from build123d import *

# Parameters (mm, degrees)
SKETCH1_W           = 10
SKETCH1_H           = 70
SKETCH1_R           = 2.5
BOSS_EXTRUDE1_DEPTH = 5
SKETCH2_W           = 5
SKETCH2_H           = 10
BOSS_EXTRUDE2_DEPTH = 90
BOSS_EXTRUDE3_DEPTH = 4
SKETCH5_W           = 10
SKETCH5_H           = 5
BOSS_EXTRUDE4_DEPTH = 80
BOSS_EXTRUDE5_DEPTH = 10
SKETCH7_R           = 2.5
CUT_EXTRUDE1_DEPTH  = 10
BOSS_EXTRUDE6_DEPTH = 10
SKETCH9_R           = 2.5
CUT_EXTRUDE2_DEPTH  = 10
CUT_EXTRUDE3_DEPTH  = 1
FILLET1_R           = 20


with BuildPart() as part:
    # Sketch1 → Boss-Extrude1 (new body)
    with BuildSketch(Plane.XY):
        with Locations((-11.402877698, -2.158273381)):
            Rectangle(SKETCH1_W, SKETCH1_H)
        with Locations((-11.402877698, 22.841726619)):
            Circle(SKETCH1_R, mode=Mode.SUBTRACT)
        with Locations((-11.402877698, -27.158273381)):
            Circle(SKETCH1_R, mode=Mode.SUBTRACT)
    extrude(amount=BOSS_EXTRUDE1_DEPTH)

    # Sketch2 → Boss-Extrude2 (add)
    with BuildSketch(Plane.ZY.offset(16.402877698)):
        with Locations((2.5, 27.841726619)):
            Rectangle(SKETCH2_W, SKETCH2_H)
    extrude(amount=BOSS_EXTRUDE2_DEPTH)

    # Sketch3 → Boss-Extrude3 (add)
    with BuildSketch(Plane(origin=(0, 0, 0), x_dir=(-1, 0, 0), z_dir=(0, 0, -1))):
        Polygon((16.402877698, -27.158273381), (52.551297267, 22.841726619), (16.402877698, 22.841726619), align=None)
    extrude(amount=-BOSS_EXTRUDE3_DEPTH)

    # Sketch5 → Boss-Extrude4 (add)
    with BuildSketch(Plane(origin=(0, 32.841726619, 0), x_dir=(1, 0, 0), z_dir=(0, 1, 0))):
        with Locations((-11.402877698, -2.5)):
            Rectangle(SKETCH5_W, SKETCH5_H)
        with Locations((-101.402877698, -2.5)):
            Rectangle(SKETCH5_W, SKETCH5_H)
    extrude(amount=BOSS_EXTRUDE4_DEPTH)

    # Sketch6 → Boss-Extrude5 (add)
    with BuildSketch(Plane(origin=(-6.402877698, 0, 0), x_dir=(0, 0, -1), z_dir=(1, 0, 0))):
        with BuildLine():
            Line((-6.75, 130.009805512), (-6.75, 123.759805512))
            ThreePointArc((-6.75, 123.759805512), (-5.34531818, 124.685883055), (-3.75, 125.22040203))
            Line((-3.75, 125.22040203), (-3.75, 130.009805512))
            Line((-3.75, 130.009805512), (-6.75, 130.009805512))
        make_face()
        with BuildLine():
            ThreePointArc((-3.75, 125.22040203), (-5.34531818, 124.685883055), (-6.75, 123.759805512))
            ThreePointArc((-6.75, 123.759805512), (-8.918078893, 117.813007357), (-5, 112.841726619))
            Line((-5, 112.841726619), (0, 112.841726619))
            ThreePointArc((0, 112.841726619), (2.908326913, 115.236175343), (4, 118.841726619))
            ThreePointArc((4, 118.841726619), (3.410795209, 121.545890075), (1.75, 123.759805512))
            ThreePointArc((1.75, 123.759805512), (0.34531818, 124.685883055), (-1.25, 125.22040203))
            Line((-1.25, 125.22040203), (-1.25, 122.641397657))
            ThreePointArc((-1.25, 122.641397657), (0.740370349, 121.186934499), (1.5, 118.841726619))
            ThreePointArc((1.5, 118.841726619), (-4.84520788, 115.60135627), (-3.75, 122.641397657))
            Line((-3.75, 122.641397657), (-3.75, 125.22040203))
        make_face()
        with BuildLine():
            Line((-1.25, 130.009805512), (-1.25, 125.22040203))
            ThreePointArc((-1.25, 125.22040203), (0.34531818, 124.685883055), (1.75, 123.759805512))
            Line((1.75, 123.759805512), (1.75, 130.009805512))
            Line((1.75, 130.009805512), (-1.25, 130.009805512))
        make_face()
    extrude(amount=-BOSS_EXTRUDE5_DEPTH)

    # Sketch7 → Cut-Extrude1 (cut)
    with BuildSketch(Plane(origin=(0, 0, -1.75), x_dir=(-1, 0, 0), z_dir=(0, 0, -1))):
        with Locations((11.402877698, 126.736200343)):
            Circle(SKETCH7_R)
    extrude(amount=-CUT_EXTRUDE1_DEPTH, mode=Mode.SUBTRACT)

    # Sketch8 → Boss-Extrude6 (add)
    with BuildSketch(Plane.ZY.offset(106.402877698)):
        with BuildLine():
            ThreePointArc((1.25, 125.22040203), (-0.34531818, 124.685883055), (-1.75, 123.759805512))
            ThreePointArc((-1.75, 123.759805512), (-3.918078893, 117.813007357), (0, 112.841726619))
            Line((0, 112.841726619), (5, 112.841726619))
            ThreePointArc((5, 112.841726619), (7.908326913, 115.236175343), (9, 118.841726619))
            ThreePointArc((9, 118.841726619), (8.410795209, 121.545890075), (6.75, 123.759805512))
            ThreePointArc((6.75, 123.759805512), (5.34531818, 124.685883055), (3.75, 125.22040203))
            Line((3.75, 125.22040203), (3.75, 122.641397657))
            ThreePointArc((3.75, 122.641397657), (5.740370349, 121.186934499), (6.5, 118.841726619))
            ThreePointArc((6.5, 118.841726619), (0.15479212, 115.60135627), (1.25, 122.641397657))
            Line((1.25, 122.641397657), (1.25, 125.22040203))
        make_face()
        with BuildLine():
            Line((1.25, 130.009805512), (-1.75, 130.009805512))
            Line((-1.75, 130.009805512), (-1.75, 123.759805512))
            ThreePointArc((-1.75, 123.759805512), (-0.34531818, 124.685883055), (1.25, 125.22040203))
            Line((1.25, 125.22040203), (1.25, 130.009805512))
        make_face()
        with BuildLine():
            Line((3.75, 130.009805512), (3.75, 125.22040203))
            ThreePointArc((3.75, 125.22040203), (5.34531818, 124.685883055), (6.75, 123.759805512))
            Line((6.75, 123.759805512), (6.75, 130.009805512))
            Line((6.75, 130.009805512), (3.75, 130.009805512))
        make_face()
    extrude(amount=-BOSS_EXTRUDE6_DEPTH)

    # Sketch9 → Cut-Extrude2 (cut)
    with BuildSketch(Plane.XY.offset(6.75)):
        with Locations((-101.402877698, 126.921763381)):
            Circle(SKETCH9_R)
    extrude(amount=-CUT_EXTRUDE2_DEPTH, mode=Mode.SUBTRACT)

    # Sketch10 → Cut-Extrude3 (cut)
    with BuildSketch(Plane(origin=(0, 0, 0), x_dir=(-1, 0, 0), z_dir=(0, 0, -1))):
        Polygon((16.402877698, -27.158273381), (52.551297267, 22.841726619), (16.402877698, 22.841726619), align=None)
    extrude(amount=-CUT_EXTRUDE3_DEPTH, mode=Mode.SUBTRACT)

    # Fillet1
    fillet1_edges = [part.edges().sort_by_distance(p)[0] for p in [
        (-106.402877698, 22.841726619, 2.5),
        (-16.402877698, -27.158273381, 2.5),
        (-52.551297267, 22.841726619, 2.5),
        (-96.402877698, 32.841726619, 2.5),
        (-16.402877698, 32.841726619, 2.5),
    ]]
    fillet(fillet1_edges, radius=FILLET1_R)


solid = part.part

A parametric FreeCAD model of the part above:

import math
import FreeCAD as App
import Part
import Sketcher


def edges_at(feature, points):
    """Names of the edges that pass closest to the given points."""
    edges = feature.Shape.Edges
    near = lambda p: min(range(len(edges)), key=lambda i: edges[i].distToShape(Part.Vertex(*p))[0])
    return sorted({f"Edge{near(p) + 1}" for p in points})

doc = App.newDocument("Part")
body = doc.addObject("PartDesign::Body", "Body")

# Sketch on XY plane
sketch1 = doc.addObject("Sketcher::SketchObject", "Sketch")
body.addObject(sketch1)
sketch1.AttachmentSupport = (doc.XY_Plane, [""])
sketch1.MapMode = "FlatFace"
sketch1.addGeometry(Part.LineSegment(App.Vector(-16.4, 32.8, 0), App.Vector(-16.4, -37.2, 0)), False)
sketch1.addGeometry(Part.LineSegment(App.Vector(-16.4, -37.2, 0), App.Vector(-6.4, -37.2, 0)), False)
sketch1.addGeometry(Part.LineSegment(App.Vector(-6.4, -37.2, 0), App.Vector(-6.4, 32.8, 0)), False)
sketch1.addGeometry(Part.LineSegment(App.Vector(-6.4, 32.8, 0), App.Vector(-16.4, 32.8, 0)), False)
sketch1.addGeometry(Part.Circle(App.Vector(-11.4, -27.2, 0), App.Vector(0, 0, 1), 2.5), False)
sketch1.addGeometry(Part.Circle(App.Vector(-11.4, 22.8, 0), App.Vector(0, 0, 1), 2.5), False)
sketch1.addConstraint(Sketcher.Constraint("Coincident", 0, 2, 1, 1))
sketch1.addConstraint(Sketcher.Constraint("Coincident", 1, 2, 2, 1))
sketch1.addConstraint(Sketcher.Constraint("Coincident", 2, 2, 3, 1))
sketch1.addConstraint(Sketcher.Constraint("Coincident", 3, 2, 0, 1))
sketch1.addConstraint(Sketcher.Constraint("Vertical", 0))
sketch1.addConstraint(Sketcher.Constraint("Horizontal", 1))
sketch1.addConstraint(Sketcher.Constraint("Vertical", 2))
sketch1.addConstraint(Sketcher.Constraint("Horizontal", 3))
sketch1.addConstraint(Sketcher.Constraint("Equal", 4, 5))
sketch1.addConstraint(Sketcher.Constraint("Vertical", 4, 3, 5, 3))
sketch1.addConstraint(Sketcher.Constraint("Diameter", 4, 5.0))
sketch1.addConstraint(Sketcher.Constraint("DistanceX", 1, 1, 1, 2, 10.0))
sketch1.addConstraint(Sketcher.Constraint("DistanceY", 0, 2, 0, 1, 70.0))
sketch1.addConstraint(Sketcher.Constraint("DistanceY", 4, 3, 5, 3, 50.0))
sketch1.addConstraint(Sketcher.Constraint("DistanceX", 0, 2, 4, 3, 5.0))
sketch1.addConstraint(Sketcher.Constraint("DistanceY", 0, 2, 4, 3, 10.0))
sketch1.addConstraint(Sketcher.Constraint("DistanceX", 4, 3, -1, 1, 11.402878))
sketch1.addConstraint(Sketcher.Constraint("DistanceY", 4, 3, -1, 1, 27.158273))
pad1 = doc.addObject("PartDesign::Pad", "Pad")
body.addObject(pad1)
pad1.Profile = sketch1
pad1.Length = 5

# Sketch on YZ plane
sketch2 = doc.addObject("Sketcher::SketchObject", "Sketch001")
body.addObject(sketch2)
sketch2.AttachmentSupport = (doc.YZ_Plane, [""])
sketch2.MapMode = "FlatFace"
sketch2.AttachmentOffset = App.Placement(App.Vector(0, 0, -16.402878), App.Rotation())
sketch2.addGeometry(Part.LineSegment(App.Vector(33, 0, 0), App.Vector(23, 0, 0)), False)
sketch2.addGeometry(Part.LineSegment(App.Vector(23, 0, 0), App.Vector(23, 5, 0)), False)
sketch2.addGeometry(Part.LineSegment(App.Vector(23, 5, 0), App.Vector(33, 5, 0)), False)
sketch2.addGeometry(Part.LineSegment(App.Vector(33, 5, 0), App.Vector(33, 0, 0)), False)
sketch2.addConstraint(Sketcher.Constraint("Coincident", 0, 2, 1, 1))
sketch2.addConstraint(Sketcher.Constraint("Coincident", 1, 2, 2, 1))
sketch2.addConstraint(Sketcher.Constraint("Coincident", 2, 2, 3, 1))
sketch2.addConstraint(Sketcher.Constraint("Coincident", 3, 2, 0, 1))
sketch2.addConstraint(Sketcher.Constraint("Horizontal", 0))
sketch2.addConstraint(Sketcher.Constraint("Vertical", 1))
sketch2.addConstraint(Sketcher.Constraint("Horizontal", 2))
sketch2.addConstraint(Sketcher.Constraint("Vertical", 3))
sketch2.addConstraint(Sketcher.Constraint("PointOnObject", 0, 2, -1))
sketch2.addConstraint(Sketcher.Constraint("DistanceX", 0, 2, 0, 1, 10.0))
sketch2.addConstraint(Sketcher.Constraint("DistanceY", 1, 1, 1, 2, 5.0))
sketch2.addConstraint(Sketcher.Constraint("DistanceX", -1, 1, 0, 2, 22.841727))
pad2 = doc.addObject("PartDesign::Pad", "Pad001")
body.addObject(pad2)
pad2.Profile = sketch2
pad2.Length = 90
pad2.Reversed = True

# Sketch on XY plane
sketch3 = doc.addObject("Sketcher::SketchObject", "Sketch002")
body.addObject(sketch3)
sketch3.AttachmentSupport = (doc.XY_Plane, [""])
sketch3.MapMode = "FlatFace"
sketch3.addGeometry(Part.LineSegment(App.Vector(-16, -27, 0), App.Vector(-53, 23, 0)), False)
sketch3.addGeometry(Part.LineSegment(App.Vector(-53, 23, 0), App.Vector(-16, 23, 0)), False)
sketch3.addGeometry(Part.LineSegment(App.Vector(-16, 23, 0), App.Vector(-16, -27, 0)), False)
sketch3.addConstraint(Sketcher.Constraint("Coincident", 0, 2, 1, 1))
sketch3.addConstraint(Sketcher.Constraint("Coincident", 1, 2, 2, 1))
sketch3.addConstraint(Sketcher.Constraint("Coincident", 2, 2, 0, 1))
sketch3.addConstraint(Sketcher.Constraint("Horizontal", 1))
sketch3.addConstraint(Sketcher.Constraint("Vertical", 2))
sketch3.addConstraint(Sketcher.Constraint("DistanceY", 2, 2, 2, 1, 50.0))
sketch3.addConstraint(Sketcher.Constraint("DistanceX", 1, 1, 1, 2, 36.14842))
sketch3.addConstraint(Sketcher.Constraint("DistanceX", 0, 2, -1, 1, 52.551297))
sketch3.addConstraint(Sketcher.Constraint("DistanceY", -1, 1, 0, 2, 22.841727))
pad3 = doc.addObject("PartDesign::Pad", "Pad002")
body.addObject(pad3)
pad3.Profile = sketch3
pad3.Length = 4

# Sketch on XZ plane
sketch4 = doc.addObject("Sketcher::SketchObject", "Sketch003")
body.addObject(sketch4)
sketch4.AttachmentSupport = (doc.XZ_Plane, [""])
sketch4.MapMode = "FlatFace"
sketch4.AttachmentOffset = App.Placement(App.Vector(0, 0, -32.841727), App.Rotation())
sketch4.addGeometry(Part.LineSegment(App.Vector(-16, 0, 0), App.Vector(-16, 5, 0)), False)
sketch4.addGeometry(Part.LineSegment(App.Vector(-16, 5, 0), App.Vector(-6, 5, 0)), False)
sketch4.addGeometry(Part.LineSegment(App.Vector(-6, 5, 0), App.Vector(-6, 0, 0)), False)
sketch4.addGeometry(Part.LineSegment(App.Vector(-6, 0, 0), App.Vector(-16, 0, 0)), False)
sketch4.addGeometry(Part.LineSegment(App.Vector(-106, 0, 0), App.Vector(-106, 5, 0)), False)
sketch4.addGeometry(Part.LineSegment(App.Vector(-106, 5, 0), App.Vector(-96, 5, 0)), False)
sketch4.addGeometry(Part.LineSegment(App.Vector(-96, 5, 0), App.Vector(-96, 0, 0)), False)
sketch4.addGeometry(Part.LineSegment(App.Vector(-96, 0, 0), App.Vector(-106, 0, 0)), False)
sketch4.addConstraint(Sketcher.Constraint("Coincident", 0, 2, 1, 1))
sketch4.addConstraint(Sketcher.Constraint("Coincident", 1, 2, 2, 1))
sketch4.addConstraint(Sketcher.Constraint("Coincident", 2, 2, 3, 1))
sketch4.addConstraint(Sketcher.Constraint("Coincident", 3, 2, 0, 1))
sketch4.addConstraint(Sketcher.Constraint("Coincident", 4, 2, 5, 1))
sketch4.addConstraint(Sketcher.Constraint("Coincident", 5, 2, 6, 1))
sketch4.addConstraint(Sketcher.Constraint("Coincident", 6, 2, 7, 1))
sketch4.addConstraint(Sketcher.Constraint("Coincident", 7, 2, 4, 1))
sketch4.addConstraint(Sketcher.Constraint("Vertical", 0))
sketch4.addConstraint(Sketcher.Constraint("Horizontal", 1))
sketch4.addConstraint(Sketcher.Constraint("Vertical", 2))
sketch4.addConstraint(Sketcher.Constraint("Horizontal", 3))
sketch4.addConstraint(Sketcher.Constraint("Vertical", 4))
sketch4.addConstraint(Sketcher.Constraint("Horizontal", 5))
sketch4.addConstraint(Sketcher.Constraint("Vertical", 6))
sketch4.addConstraint(Sketcher.Constraint("Horizontal", 7))
sketch4.addConstraint(Sketcher.Constraint("PointOnObject", 2, 2, -1))
sketch4.addConstraint(Sketcher.Constraint("PointOnObject", 6, 2, -1))
sketch4.addConstraint(Sketcher.Constraint("Horizontal", 1, 2, 4, 2))
sketch4.addConstraint(Sketcher.Constraint("Equal", 3, 5))
sketch4.addConstraint(Sketcher.Constraint("DistanceX", 1, 1, 1, 2, 10.0))
sketch4.addConstraint(Sketcher.Constraint("DistanceY", 0, 1, 0, 2, 5.0))
sketch4.addConstraint(Sketcher.Constraint("DistanceX", 4, 2, 0, 2, 90.0))
sketch4.addConstraint(Sketcher.Constraint("DistanceX", 0, 2, -1, 1, 16.402878))
pad4 = doc.addObject("PartDesign::Pad", "Pad003")
body.addObject(pad4)
pad4.Profile = sketch4
pad4.Length = 80
pad4.Reversed = True

# Sketch on YZ plane
sketch5 = doc.addObject("Sketcher::SketchObject", "Sketch004")
body.addObject(sketch5)
sketch5.AttachmentSupport = (doc.YZ_Plane, [""])
sketch5.MapMode = "FlatFace"
sketch5.AttachmentOffset = App.Placement(App.Vector(0, 0, -6.402878), App.Rotation())
sketch5.addGeometry(Part.LineSegment(App.Vector(130, 6.8, 0), App.Vector(123.8, 6.8, 0)), False)
sketch5.addGeometry(Part.ArcOfCircle(Part.Circle(App.Vector(118.8, 2.5, 0), App.Vector(0, 0, 1), 6.5), math.radians(41), math.radians(157)), False)
sketch5.addGeometry(Part.LineSegment(App.Vector(112.8, 5, 0), App.Vector(112.8, 0, 0)), False)
sketch5.addGeometry(Part.ArcOfCircle(Part.Circle(App.Vector(118.8, 2.5, 0), App.Vector(0, 0, 1), 6.5), math.radians(-157), math.radians(-90)), False)
sketch5.addGeometry(Part.ArcOfCircle(Part.Circle(App.Vector(118.8, 2.5, 0), App.Vector(0, 0, 1), 6.5), math.radians(-90), math.radians(-41)), False)
sketch5.addGeometry(Part.LineSegment(App.Vector(123.8, -1.8, 0), App.Vector(130, -1.8, 0)), False)
sketch5.addGeometry(Part.LineSegment(App.Vector(130, -1.8, 0), App.Vector(130, 1.2, 0)), False)
sketch5.addGeometry(Part.LineSegment(App.Vector(130, 1.2, 0), App.Vector(122.6, 1.2, 0)), False)
sketch5.addGeometry(Part.ArcOfCircle(Part.Circle(App.Vector(118.8, 2.5, 0), App.Vector(0, 0, 1), 4), math.radians(-90), math.radians(-18)), False)
sketch5.addGeometry(Part.ArcOfCircle(Part.Circle(App.Vector(118.8, 2.5, 0), App.Vector(0, 0, 1), 4), math.radians(18), math.radians(270)), False)
sketch5.addGeometry(Part.LineSegment(App.Vector(122.6, 3.8, 0), App.Vector(130, 3.8, 0)), False)
sketch5.addGeometry(Part.LineSegment(App.Vector(130, 3.8, 0), App.Vector(130, 6.8, 0)), False)
sketch5.addConstraint(Sketcher.Constraint("Coincident", 0, 2, 1, 1))
sketch5.addConstraint(Sketcher.Constraint("Coincident", 1, 2, 2, 1))
sketch5.addConstraint(Sketcher.Constraint("Coincident", 2, 2, 3, 1))
sketch5.addConstraint(Sketcher.Constraint("Tangent", 3, 2, 4, 1))
sketch5.addConstraint(Sketcher.Constraint("Coincident", 4, 2, 5, 1))
sketch5.addConstraint(Sketcher.Constraint("Coincident", 5, 2, 6, 1))
sketch5.addConstraint(Sketcher.Constraint("Coincident", 6, 2, 7, 1))
sketch5.addConstraint(Sketcher.Constraint("Coincident", 7, 2, 8, 2))
sketch5.addConstraint(Sketcher.Constraint("Tangent", 8, 1, 9, 2))
sketch5.addConstraint(Sketcher.Constraint("Coincident", 9, 1, 10, 1))
sketch5.addConstraint(Sketcher.Constraint("Coincident", 10, 2, 11, 1))
sketch5.addConstraint(Sketcher.Constraint("Coincident", 11, 2, 0, 1))
sketch5.addConstraint(Sketcher.Constraint("Horizontal", 0))
sketch5.addConstraint(Sketcher.Constraint("Vertical", 2))
sketch5.addConstraint(Sketcher.Constraint("Horizontal", 5))
sketch5.addConstraint(Sketcher.Constraint("Vertical", 6))
sketch5.addConstraint(Sketcher.Constraint("Horizontal", 7))
sketch5.addConstraint(Sketcher.Constraint("Horizontal", 10))
sketch5.addConstraint(Sketcher.Constraint("Vertical", 11))
sketch5.addConstraint(Sketcher.Constraint("Coincident", 3, 3, 1, 3))
sketch5.addConstraint(Sketcher.Constraint("Coincident", 8, 3, 1, 3))
sketch5.addConstraint(Sketcher.Constraint("Equal", 1, 3))
sketch5.addConstraint(Sketcher.Constraint("Equal", 3, 4))
sketch5.addConstraint(Sketcher.Constraint("Equal", 8, 9))
sketch5.addConstraint(Sketcher.Constraint("PointOnObject", 2, 2, -1))
sketch5.addConstraint(Sketcher.Constraint("Vertical", 9, 3, 3, 2))
sketch5.addConstraint(Sketcher.Constraint("Vertical", 0, 2, 4, 2))
sketch5.addConstraint(Sketcher.Constraint("Vertical", 3, 2, 8, 1))
sketch5.addConstraint(Sketcher.Constraint("Vertical", 7, 2, 9, 1))
sketch5.addConstraint(Sketcher.Constraint("Vertical", 6, 2, 10, 2))
sketch5.addConstraint(Sketcher.Constraint("Radius", 8, 4.0))
sketch5.addConstraint(Sketcher.Constraint("Radius", 1, 6.5))
sketch5.addConstraint(Sketcher.Constraint("DistanceY", 2, 2, 2, 1, 5.0))
sketch5.addConstraint(Sketcher.Constraint("DistanceY", 6, 1, 6, 2, 3.0))
sketch5.addConstraint(Sketcher.Constraint("DistanceX", 0, 2, 0, 1, 6.25))
sketch5.addConstraint(Sketcher.Constraint("DistanceY", 5, 2, 0, 2, 8.5))
sketch5.addConstraint(Sketcher.Constraint("DistanceX", -1, 1, 1, 3, 118.841727))
pad5 = doc.addObject("PartDesign::Pad", "Pad004")
body.addObject(pad5)
pad5.Profile = sketch5
pad5.Length = 10
pad5.Reversed = True

# Sketch on XY plane
sketch6 = doc.addObject("Sketcher::SketchObject", "Sketch005")
body.addObject(sketch6)
sketch6.AttachmentSupport = (doc.XY_Plane, [""])
sketch6.MapMode = "FlatFace"
sketch6.AttachmentOffset = App.Placement(App.Vector(0, 0, -1.75), App.Rotation())
sketch6.addGeometry(Part.Circle(App.Vector(-11.4, 126.7, 0), App.Vector(0, 0, 1), 2.5), False)
sketch6.addConstraint(Sketcher.Constraint("Diameter", 0, 5.0))
sketch6.addConstraint(Sketcher.Constraint("DistanceY", -1, 1, 0, 3, 126.7362))
sketch6.addConstraint(Sketcher.Constraint("DistanceX", 0, 3, -1, 1, 11.402878))
pocket1 = doc.addObject("PartDesign::Pocket", "Pocket")
body.addObject(pocket1)
pocket1.Profile = sketch6
pocket1.Length = 10
pocket1.Reversed = True

# Sketch on YZ plane
sketch7 = doc.addObject("Sketcher::SketchObject", "Sketch006")
body.addObject(sketch7)
sketch7.AttachmentSupport = (doc.YZ_Plane, [""])
sketch7.MapMode = "FlatFace"
sketch7.AttachmentOffset = App.Placement(App.Vector(0, 0, -106.402878), App.Rotation())
sketch7.addGeometry(Part.ArcOfCircle(Part.Circle(App.Vector(118.8, 2.5, 0), App.Vector(0, 0, 1), 6.5), math.radians(-157), math.radians(-41)), False)
sketch7.addGeometry(Part.LineSegment(App.Vector(112.8, 0, 0), App.Vector(112.8, 5, 0)), False)
sketch7.addGeometry(Part.ArcOfCircle(Part.Circle(App.Vector(118.8, 2.5, 0), App.Vector(0, 0, 1), 6.5), math.radians(90), math.radians(157)), False)
sketch7.addGeometry(Part.ArcOfCircle(Part.Circle(App.Vector(118.8, 2.5, 0), App.Vector(0, 0, 1), 6.5), math.radians(41), math.radians(90)), False)
sketch7.addGeometry(Part.LineSegment(App.Vector(123.8, 6.8, 0), App.Vector(130, 6.8, 0)), False)
sketch7.addGeometry(Part.LineSegment(App.Vector(130, 6.8, 0), App.Vector(130, 3.8, 0)), False)
sketch7.addGeometry(Part.LineSegment(App.Vector(130, 3.8, 0), App.Vector(122.6, 3.8, 0)), False)
sketch7.addGeometry(Part.ArcOfCircle(Part.Circle(App.Vector(118.8, 2.5, 0), App.Vector(0, 0, 1), 4), math.radians(18), math.radians(90)), False)
sketch7.addGeometry(Part.ArcOfCircle(Part.Circle(App.Vector(118.8, 2.5, 0), App.Vector(0, 0, 1), 4), math.radians(90), math.radians(342)), False)
sketch7.addGeometry(Part.LineSegment(App.Vector(122.6, 1.2, 0), App.Vector(130, 1.2, 0)), False)
sketch7.addGeometry(Part.LineSegment(App.Vector(130, 1.2, 0), App.Vector(130, -1.8, 0)), False)
sketch7.addGeometry(Part.LineSegment(App.Vector(130, -1.8, 0), App.Vector(123.8, -1.8, 0)), False)
sketch7.addConstraint(Sketcher.Constraint("Coincident", 0, 1, 1, 1))
sketch7.addConstraint(Sketcher.Constraint("Coincident", 1, 2, 2, 2))
sketch7.addConstraint(Sketcher.Constraint("Tangent", 2, 1, 3, 2))
sketch7.addConstraint(Sketcher.Constraint("Coincident", 3, 1, 4, 1))
sketch7.addConstraint(Sketcher.Constraint("Coincident", 4, 2, 5, 1))
sketch7.addConstraint(Sketcher.Constraint("Coincident", 5, 2, 6, 1))
sketch7.addConstraint(Sketcher.Constraint("Coincident", 6, 2, 7, 1))
sketch7.addConstraint(Sketcher.Constraint("Tangent", 7, 2, 8, 1))
sketch7.addConstraint(Sketcher.Constraint("Coincident", 8, 2, 9, 1))
sketch7.addConstraint(Sketcher.Constraint("Coincident", 9, 2, 10, 1))
sketch7.addConstraint(Sketcher.Constraint("Coincident", 10, 2, 11, 1))
sketch7.addConstraint(Sketcher.Constraint("Coincident", 11, 2, 0, 2))
sketch7.addConstraint(Sketcher.Constraint("Vertical", 1))
sketch7.addConstraint(Sketcher.Constraint("Horizontal", 4))
sketch7.addConstraint(Sketcher.Constraint("Vertical", 5))
sketch7.addConstraint(Sketcher.Constraint("Horizontal", 6))
sketch7.addConstraint(Sketcher.Constraint("Horizontal", 9))
sketch7.addConstraint(Sketcher.Constraint("Vertical", 10))
sketch7.addConstraint(Sketcher.Constraint("Horizontal", 11))
sketch7.addConstraint(Sketcher.Constraint("Coincident", 2, 3, 0, 3))
sketch7.addConstraint(Sketcher.Constraint("Coincident", 7, 3, 0, 3))
sketch7.addConstraint(Sketcher.Constraint("Equal", 0, 2))
sketch7.addConstraint(Sketcher.Constraint("Equal", 2, 3))
sketch7.addConstraint(Sketcher.Constraint("Equal", 7, 8))
sketch7.addConstraint(Sketcher.Constraint("PointOnObject", 0, 1, -1))
sketch7.addConstraint(Sketcher.Constraint("Vertical", 8, 3, 2, 1))
sketch7.addConstraint(Sketcher.Constraint("Vertical", 2, 1, 7, 2))
sketch7.addConstraint(Sketcher.Constraint("Vertical", 6, 2, 8, 2))
sketch7.addConstraint(Sketcher.Constraint("Vertical", 5, 2, 9, 2))
sketch7.addConstraint(Sketcher.Constraint("Vertical", 3, 1, 11, 2))
sketch7.addConstraint(Sketcher.Constraint("Radius", 7, 4.0))
sketch7.addConstraint(Sketcher.Constraint("Radius", 0, 6.5))
sketch7.addConstraint(Sketcher.Constraint("DistanceY", 1, 1, 1, 2, 5.0))
sketch7.addConstraint(Sketcher.Constraint("DistanceY", 5, 2, 5, 1, 3.0))
sketch7.addConstraint(Sketcher.Constraint("DistanceX", 4, 1, 4, 2, 6.25))
sketch7.addConstraint(Sketcher.Constraint("DistanceY", 8, 2, 6, 2, 2.5))
sketch7.addConstraint(Sketcher.Constraint("DistanceX", -1, 1, 0, 3, 118.841727))
pad6 = doc.addObject("PartDesign::Pad", "Pad005")
body.addObject(pad6)
pad6.Profile = sketch7
pad6.Length = 10

# Sketch on XY plane
sketch8 = doc.addObject("Sketcher::SketchObject", "Sketch007")
body.addObject(sketch8)
sketch8.AttachmentSupport = (doc.XY_Plane, [""])
sketch8.MapMode = "FlatFace"
sketch8.AttachmentOffset = App.Placement(App.Vector(0, 0, 6.75), App.Rotation())
sketch8.addGeometry(Part.Circle(App.Vector(-101.4, 126.9, 0), App.Vector(0, 0, 1), 2.5), False)
sketch8.addConstraint(Sketcher.Constraint("Diameter", 0, 5.0))
sketch8.addConstraint(Sketcher.Constraint("DistanceX", 0, 3, -1, 1, 101.402878))
sketch8.addConstraint(Sketcher.Constraint("DistanceY", -1, 1, 0, 3, 126.921763))
pocket2 = doc.addObject("PartDesign::Pocket", "Pocket001")
body.addObject(pocket2)
pocket2.Profile = sketch8
pocket2.Length = 10

# Sketch on XY plane
sketch9 = doc.addObject("Sketcher::SketchObject", "Sketch008")
body.addObject(sketch9)
sketch9.AttachmentSupport = (doc.XY_Plane, [""])
sketch9.MapMode = "FlatFace"
sketch9.addGeometry(Part.LineSegment(App.Vector(-16, -27, 0), App.Vector(-53, 23, 0)), False)
sketch9.addGeometry(Part.LineSegment(App.Vector(-53, 23, 0), App.Vector(-16, 23, 0)), False)
sketch9.addGeometry(Part.LineSegment(App.Vector(-16, 23, 0), App.Vector(-16, -27, 0)), False)
sketch9.addConstraint(Sketcher.Constraint("Coincident", 0, 2, 1, 1))
sketch9.addConstraint(Sketcher.Constraint("Coincident", 1, 2, 2, 1))
sketch9.addConstraint(Sketcher.Constraint("Coincident", 2, 2, 0, 1))
sketch9.addConstraint(Sketcher.Constraint("Horizontal", 1))
sketch9.addConstraint(Sketcher.Constraint("Vertical", 2))
sketch9.addConstraint(Sketcher.Constraint("DistanceY", 2, 2, 2, 1, 50.0))
sketch9.addConstraint(Sketcher.Constraint("DistanceX", 1, 1, 1, 2, 36.14842))
sketch9.addConstraint(Sketcher.Constraint("DistanceX", 0, 2, -1, 1, 52.551297))
sketch9.addConstraint(Sketcher.Constraint("DistanceY", -1, 1, 0, 2, 22.841727))
pocket3 = doc.addObject("PartDesign::Pocket", "Pocket002")
body.addObject(pocket3)
pocket3.Profile = sketch9
pocket3.Length = 1
pocket3.Reversed = True
doc.recompute()

fillet = doc.addObject("PartDesign::Fillet", "Fillet")
body.addObject(fillet)
fillet.Base = (pocket3, edges_at(pocket3, [
    (-106.403, 22.842, 2.5),
    (-16.403, -27.158, 2.5),
    (-52.551, 22.842, 2.5),
    (-96.403, 32.842, 2.5),
    (-16.403, 32.842, 2.5),
]))
fillet.Radius = 20

doc.recompute()
